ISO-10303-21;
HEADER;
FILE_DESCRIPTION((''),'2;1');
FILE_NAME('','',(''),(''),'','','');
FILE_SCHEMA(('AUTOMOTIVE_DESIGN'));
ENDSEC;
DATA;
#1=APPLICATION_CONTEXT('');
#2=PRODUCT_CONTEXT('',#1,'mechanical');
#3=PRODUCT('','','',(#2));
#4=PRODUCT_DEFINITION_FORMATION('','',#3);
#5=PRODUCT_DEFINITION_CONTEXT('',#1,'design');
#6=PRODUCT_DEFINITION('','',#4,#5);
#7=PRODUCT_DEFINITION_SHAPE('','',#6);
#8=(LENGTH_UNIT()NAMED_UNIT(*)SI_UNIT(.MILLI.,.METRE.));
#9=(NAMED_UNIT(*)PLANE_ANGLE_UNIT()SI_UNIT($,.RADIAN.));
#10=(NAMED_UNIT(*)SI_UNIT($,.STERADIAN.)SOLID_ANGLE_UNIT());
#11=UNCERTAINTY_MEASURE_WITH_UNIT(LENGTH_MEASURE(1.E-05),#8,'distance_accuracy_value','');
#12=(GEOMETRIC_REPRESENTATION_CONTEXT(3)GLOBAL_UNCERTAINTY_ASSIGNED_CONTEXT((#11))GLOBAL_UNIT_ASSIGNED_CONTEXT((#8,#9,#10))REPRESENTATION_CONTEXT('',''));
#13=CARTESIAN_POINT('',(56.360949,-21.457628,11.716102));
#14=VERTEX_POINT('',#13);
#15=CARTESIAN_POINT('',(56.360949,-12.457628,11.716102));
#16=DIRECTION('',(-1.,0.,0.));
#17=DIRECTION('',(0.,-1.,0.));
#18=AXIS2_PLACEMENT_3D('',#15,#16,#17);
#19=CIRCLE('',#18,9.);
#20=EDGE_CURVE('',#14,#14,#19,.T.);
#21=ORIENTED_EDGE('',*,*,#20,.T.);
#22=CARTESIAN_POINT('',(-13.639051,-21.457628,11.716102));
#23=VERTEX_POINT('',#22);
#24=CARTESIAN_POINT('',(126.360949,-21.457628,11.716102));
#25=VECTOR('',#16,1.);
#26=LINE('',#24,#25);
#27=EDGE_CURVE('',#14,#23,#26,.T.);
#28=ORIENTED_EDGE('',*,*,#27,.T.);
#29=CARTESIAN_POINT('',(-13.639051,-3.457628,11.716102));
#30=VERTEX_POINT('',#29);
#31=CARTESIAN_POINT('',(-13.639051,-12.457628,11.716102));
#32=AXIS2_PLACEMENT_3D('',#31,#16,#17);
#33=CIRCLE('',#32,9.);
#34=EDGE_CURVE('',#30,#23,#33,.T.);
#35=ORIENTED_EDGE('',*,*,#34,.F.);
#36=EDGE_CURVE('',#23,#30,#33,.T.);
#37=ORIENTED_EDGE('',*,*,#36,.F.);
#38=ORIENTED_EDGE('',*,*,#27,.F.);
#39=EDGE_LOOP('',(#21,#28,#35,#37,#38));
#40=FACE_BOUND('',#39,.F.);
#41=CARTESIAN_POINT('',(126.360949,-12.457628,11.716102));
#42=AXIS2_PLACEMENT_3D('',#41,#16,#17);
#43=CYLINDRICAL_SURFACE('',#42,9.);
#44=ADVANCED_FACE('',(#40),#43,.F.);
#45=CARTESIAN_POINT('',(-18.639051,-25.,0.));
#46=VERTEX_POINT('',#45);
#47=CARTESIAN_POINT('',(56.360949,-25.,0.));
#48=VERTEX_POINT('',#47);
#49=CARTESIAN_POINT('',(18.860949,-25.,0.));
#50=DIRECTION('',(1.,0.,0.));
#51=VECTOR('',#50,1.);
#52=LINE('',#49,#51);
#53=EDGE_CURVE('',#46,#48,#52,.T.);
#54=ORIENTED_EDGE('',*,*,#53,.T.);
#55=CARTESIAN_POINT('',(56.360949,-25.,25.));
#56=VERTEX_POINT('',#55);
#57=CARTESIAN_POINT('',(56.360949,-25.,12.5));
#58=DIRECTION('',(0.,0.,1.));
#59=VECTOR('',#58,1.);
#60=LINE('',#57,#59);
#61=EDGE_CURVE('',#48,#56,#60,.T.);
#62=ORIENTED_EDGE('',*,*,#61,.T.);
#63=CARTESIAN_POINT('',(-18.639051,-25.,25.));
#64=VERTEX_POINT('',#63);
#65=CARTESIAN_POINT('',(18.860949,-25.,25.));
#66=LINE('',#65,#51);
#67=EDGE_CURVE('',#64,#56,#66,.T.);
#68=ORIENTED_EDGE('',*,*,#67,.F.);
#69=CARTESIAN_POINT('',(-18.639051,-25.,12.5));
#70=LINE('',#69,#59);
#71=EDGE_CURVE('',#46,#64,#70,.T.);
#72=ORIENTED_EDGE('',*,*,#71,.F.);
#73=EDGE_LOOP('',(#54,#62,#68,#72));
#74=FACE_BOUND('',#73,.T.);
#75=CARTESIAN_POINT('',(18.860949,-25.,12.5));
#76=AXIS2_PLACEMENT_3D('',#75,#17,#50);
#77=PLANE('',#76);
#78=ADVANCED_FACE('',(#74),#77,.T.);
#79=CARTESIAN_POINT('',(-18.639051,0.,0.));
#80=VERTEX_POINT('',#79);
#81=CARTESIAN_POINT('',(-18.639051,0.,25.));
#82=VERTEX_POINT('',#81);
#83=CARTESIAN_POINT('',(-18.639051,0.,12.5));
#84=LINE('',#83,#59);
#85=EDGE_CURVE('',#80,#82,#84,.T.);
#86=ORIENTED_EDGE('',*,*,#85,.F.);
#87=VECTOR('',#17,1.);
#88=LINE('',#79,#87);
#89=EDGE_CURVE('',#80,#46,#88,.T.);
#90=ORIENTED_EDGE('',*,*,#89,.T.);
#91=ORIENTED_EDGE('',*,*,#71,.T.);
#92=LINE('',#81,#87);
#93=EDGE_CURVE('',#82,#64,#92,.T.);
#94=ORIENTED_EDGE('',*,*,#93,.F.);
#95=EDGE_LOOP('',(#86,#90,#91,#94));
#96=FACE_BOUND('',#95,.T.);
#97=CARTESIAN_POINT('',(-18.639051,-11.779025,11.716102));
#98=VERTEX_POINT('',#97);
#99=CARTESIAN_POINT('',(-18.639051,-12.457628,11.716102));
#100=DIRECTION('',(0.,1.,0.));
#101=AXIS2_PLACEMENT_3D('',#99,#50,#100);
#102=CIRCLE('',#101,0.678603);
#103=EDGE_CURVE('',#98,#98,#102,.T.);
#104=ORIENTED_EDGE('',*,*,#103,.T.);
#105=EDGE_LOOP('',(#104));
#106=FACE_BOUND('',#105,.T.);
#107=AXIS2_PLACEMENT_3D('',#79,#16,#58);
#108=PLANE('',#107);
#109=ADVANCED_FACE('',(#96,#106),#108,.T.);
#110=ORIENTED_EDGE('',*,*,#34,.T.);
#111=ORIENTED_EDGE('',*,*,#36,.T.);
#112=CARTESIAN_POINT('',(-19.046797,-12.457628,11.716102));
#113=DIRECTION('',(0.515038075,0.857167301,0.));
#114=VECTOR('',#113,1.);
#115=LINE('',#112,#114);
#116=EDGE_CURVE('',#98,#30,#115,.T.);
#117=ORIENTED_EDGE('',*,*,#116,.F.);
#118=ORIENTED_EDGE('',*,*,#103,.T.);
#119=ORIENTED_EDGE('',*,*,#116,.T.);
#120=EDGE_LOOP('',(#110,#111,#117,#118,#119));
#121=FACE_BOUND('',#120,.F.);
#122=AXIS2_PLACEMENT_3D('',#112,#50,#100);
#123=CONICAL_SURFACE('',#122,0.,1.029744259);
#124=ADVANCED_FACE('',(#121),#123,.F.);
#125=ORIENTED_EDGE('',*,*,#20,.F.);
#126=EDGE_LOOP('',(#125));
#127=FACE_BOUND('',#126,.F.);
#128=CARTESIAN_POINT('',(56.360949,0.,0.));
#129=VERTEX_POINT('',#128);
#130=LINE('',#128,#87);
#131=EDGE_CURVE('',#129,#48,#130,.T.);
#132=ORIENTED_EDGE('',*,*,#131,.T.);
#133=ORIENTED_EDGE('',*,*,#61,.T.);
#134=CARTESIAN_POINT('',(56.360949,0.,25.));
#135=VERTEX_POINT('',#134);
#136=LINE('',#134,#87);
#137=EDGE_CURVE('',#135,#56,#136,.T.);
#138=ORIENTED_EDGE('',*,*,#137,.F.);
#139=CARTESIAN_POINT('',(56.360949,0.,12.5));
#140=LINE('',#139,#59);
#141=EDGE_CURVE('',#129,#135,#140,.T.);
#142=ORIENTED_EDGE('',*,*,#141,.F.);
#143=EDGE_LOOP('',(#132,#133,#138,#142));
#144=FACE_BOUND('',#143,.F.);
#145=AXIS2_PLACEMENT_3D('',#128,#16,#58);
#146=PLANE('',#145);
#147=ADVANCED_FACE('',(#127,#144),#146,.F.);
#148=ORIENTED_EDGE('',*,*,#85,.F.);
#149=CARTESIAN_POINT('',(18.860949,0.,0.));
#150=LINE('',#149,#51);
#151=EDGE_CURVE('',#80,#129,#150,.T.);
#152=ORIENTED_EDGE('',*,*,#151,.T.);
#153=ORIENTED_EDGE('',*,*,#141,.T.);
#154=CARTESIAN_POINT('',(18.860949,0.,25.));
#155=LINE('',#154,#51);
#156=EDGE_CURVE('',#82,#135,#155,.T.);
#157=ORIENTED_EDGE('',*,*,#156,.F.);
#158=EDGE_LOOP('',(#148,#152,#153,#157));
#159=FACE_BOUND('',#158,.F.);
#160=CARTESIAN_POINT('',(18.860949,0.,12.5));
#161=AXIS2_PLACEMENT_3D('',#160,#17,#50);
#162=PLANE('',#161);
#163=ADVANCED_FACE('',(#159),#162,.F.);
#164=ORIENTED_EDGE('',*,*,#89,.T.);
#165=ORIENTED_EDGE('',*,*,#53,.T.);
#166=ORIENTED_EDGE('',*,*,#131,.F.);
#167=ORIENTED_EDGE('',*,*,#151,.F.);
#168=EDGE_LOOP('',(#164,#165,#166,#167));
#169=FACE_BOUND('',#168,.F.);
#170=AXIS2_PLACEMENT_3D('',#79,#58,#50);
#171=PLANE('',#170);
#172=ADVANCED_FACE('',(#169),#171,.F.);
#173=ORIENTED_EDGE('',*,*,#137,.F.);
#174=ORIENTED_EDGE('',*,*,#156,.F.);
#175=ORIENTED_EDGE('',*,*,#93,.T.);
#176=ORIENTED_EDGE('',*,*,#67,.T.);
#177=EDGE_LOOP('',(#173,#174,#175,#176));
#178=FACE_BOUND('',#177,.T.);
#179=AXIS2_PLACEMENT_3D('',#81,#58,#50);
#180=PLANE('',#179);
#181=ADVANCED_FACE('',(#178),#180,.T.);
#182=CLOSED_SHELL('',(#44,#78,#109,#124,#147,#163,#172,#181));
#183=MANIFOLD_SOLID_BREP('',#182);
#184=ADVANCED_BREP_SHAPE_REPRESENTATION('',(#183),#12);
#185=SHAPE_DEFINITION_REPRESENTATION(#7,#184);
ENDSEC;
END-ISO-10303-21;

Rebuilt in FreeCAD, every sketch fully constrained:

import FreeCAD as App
import Part
import Sketcher
from FreeCAD import Vector

doc = App.newDocument("Part")
body = doc.addObject("PartDesign::Body", "Body")

# Sketch on XZ plane
sketch1 = doc.addObject("Sketcher::SketchObject", "Sketch")
body.addObject(sketch1)
sketch1.AttachmentSupport = (doc.XZ_Plane, [""])
sketch1.MapMode = "FlatFace"
sketch1.addGeometry([
    Part.LineSegment(Vector(-19, 25, 0), Vector(-19, 0, 0)),
    Part.LineSegment(Vector(-19, 0, 0), Vector(56, 0, 0)),
    Part.LineSegment(Vector(56, 0, 0), Vector(56, 25, 0)),
    Part.LineSegment(Vector(56, 25, 0), Vector(-19, 25, 0)),
], False)
sketch1.addConstraint([
    Sketcher.Constraint("Coincident", 0, 2, 1, 1),
    Sketcher.Constraint("Coincident", 1, 2, 2, 1),
    Sketcher.Constraint("Coincident", 2, 2, 3, 1),
    Sketcher.Constraint("Coincident", 3, 2, 0, 1),
    Sketcher.Constraint("Vertical", 0),
    Sketcher.Constraint("Horizontal", 1),
    Sketcher.Constraint("Vertical", 2),
    Sketcher.Constraint("Horizontal", 3),
    Sketcher.Constraint("PointOnObject", 0, 2, -1),
    Sketcher.Constraint("DistanceX", 1, 1, 1, 2, 75.0),
    Sketcher.Constraint("DistanceY", 0, 2, 0, 1, 25.0),
    Sketcher.Constraint("DistanceX", 0, 2, -1, 1, 18.639052),
])
pad1 = doc.addObject("PartDesign::Pad", "Pad")
body.addObject(pad1)
pad1.Profile = sketch1
pad1.Length = 25

# Sketch on YZ plane
sketch2 = doc.addObject("Sketcher::SketchObject", "Sketch001")
body.addObject(sketch2)
sketch2.AttachmentSupport = (doc.YZ_Plane, [""])
sketch2.MapMode = "FlatFace"
sketch2.AttachmentOffset = App.Placement(Vector(0, 0, 56.360948), App.Rotation())
sketch2.addGeometry(Part.Circle(Vector(-12, 12, 0), Vector(0, 0, 1), 9), False)
sketch2.addConstraint([
    Sketcher.Constraint("Diameter", 0, 18.0),
    Sketcher.Constraint("DistanceX", 0, 3, -1, 1, 12.457628),
    Sketcher.Constraint("DistanceY", -1, 1, 0, 3, 11.716102),
])
doc.recompute()
hole = doc.addObject("PartDesign::Hole", "Hole")
body.addObject(hole)
hole.Profile = sketch2
hole.ThreadType = "None"
hole.Diameter = 18
hole.DepthType = "Dimension"
hole.Depth = 70
hole.DrillPoint = "Angled"
hole.DrillPointAngle = 118

doc.recompute()
